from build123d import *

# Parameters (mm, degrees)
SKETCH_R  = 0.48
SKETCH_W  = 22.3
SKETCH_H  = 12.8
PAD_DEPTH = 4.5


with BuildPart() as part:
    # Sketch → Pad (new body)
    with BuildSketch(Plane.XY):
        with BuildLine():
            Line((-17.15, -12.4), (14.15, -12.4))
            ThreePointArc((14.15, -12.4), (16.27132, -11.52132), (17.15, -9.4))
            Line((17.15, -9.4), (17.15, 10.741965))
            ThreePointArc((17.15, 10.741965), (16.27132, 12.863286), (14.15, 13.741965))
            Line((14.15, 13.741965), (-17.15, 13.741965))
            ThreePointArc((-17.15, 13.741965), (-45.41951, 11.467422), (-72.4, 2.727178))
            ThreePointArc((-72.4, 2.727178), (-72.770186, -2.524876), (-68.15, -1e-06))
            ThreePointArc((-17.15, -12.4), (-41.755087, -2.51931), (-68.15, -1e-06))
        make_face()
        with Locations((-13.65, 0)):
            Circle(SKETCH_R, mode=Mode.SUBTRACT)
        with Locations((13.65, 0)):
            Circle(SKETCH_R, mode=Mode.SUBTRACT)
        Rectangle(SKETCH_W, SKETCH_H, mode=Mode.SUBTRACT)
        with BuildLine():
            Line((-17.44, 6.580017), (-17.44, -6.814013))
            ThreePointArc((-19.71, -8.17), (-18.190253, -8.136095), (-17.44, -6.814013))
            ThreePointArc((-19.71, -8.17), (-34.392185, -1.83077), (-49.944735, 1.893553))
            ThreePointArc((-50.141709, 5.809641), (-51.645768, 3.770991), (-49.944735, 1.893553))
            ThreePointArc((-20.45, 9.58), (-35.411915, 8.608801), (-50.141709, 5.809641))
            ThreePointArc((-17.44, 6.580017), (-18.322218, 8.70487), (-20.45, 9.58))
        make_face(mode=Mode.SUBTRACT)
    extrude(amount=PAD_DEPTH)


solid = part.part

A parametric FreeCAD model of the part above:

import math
import FreeCAD as App
import Part
import Sketcher
Q = App.Units.Quantity


def add_polygon(sketch, points):
    """Adds a closed chain of lines whose ends are joined by coincident constraints."""
    first, n = sketch.GeometryCount, len(points)
    for a, b in zip(points, points[1:] + points[:1]):
        sketch.addGeometry(Part.LineSegment(App.Vector(*a, 0), App.Vector(*b, 0)), False)
    for i in range(n):
        sketch.addConstraint(Sketcher.Constraint("Coincident", first + i, 2, first + (i + 1) % n, 1))

doc = App.newDocument("Part")
body = doc.addObject("PartDesign::Body", "Body")

sketch1 = body.newObject("Sketcher::SketchObject", "Sketch")
sketch1.AttachmentSupport = (doc.getObject("XY_Plane"), [""])
sketch1.MapMode = "FlatFace"
sketch1.addGeometry(Part.LineSegment(App.Vector(-17.15, -12.4, 0), App.Vector(14.15, -12.4, 0)), False)
sketch1.addGeometry(Part.ArcOfCircle(Part.Circle(App.Vector(14.149999, -9.399999, 0), App.Vector(0, 0, 1), 3.000001), math.radians(-89.999978), math.radians(-0.000022)), False)
sketch1.addGeometry(Part.LineSegment(App.Vector(17.15, -9.4, 0), App.Vector(17.15, 10.741965, 0)), False)
sketch1.addGeometry(Part.ArcOfCircle(Part.Circle(App.Vector(14.150001, 10.741966, 0), App.Vector(0, 0, 1), 2.999999), math.radians(-0.00001), math.radians(90.00001)), False)
sketch1.addGeometry(Part.LineSegment(App.Vector(14.15, 13.741965, 0), App.Vector(-17.15, 13.741965, 0)), False)
sketch1.addGeometry(Part.ArcOfCircle(Part.Circle(App.Vector(-21.566667, -108.178063, 0), App.Vector(0, 0, 1), 122.000001), math.radians(87.925314), math.radians(114.624318)), False)
sketch1.addGeometry(Part.ArcOfCircle(Part.Circle(App.Vector(-71.15, 0, 0), App.Vector(0, 0, 1), 3), math.radians(114.624316), math.radians(359.999984)), False)
sketch1.addGeometry(Part.ArcOfCircle(Part.Circle(App.Vector(-63.67949, -92.692265, 0), App.Vector(0, 0, 1), 92.800007), math.radians(59.907643), math.radians(92.761212)), False)
sketch1.addGeometry(Part.Circle(App.Vector(-13.65, 0, 0), App.Vector(0, 0, 1), 0.48), False)
add_polygon(sketch1, [(11.15, -6.4), (-11.15, -6.4), (-11.15, 6.4), (11.15, 6.4)])
sketch1.addGeometry(Part.Circle(App.Vector(13.65, 0, 0), App.Vector(0, 0, 1), 0.48), False)
sketch1.addGeometry(Part.ArcOfCircle(Part.Circle(App.Vector(-20.439999, 6.580018, 0), App.Vector(0, 0, 1), 2.999999), math.radians(-0.000011), math.radians(90.191004)), False)
sketch1.addGeometry(Part.LineSegment(App.Vector(-17.44, 6.580017, 0), App.Vector(-17.44, -6.814013, 0)), False)
sketch1.addGeometry(Part.ArcOfCircle(Part.Circle(App.Vector(-18.98, -6.814014, 0), App.Vector(0, 0, 1), 1.54), math.radians(-118.295959), math.radians(0.000019)), False)
sketch1.addGeometry(Part.ArcOfCircle(Part.Circle(App.Vector(-63.699612, -89.88141, 0), App.Vector(0, 0, 1), 92.800003), math.radians(61.70405), math.radians(81.476175)), False)
sketch1.addGeometry(Part.ArcOfCircle(Part.Circle(App.Vector(-49.648293, 3.871461, 0), App.Vector(0, 0, 1), 2), math.radians(104.282784), math.radians(261.476165)), False)
sketch1.addGeometry(Part.ArcOfCircle(Part.Circle(App.Vector(-20.043328, -112.419359, 0), App.Vector(0, 0, 1), 122.000037), math.radians(90.190989), math.radians(104.282792)), False)
sketch1.addConstraint([
    Sketcher.Constraint("Coincident", 0, 2, 1, 1),
    Sketcher.Constraint("Coincident", 1, 2, 2, 1),
    Sketcher.Constraint("Coincident", 2, 2, 3, 1),
    Sketcher.Constraint("Coincident", 3, 2, 4, 1),
    Sketcher.Constraint("Coincident", 4, 2, 5, 1),
    Sketcher.Constraint("Coincident", 5, 2, 6, 1),
    Sketcher.Constraint("Coincident", 6, 2, 7, 2),
    Sketcher.Constraint("Coincident", 7, 1, 0, 1),
    Sketcher.Constraint("Coincident", 14, 1, 15, 1),
    Sketcher.Constraint("Coincident", 15, 2, 16, 2),
    Sketcher.Constraint("Coincident", 16, 1, 17, 1),
    Sketcher.Constraint("Coincident", 17, 2, 18, 2),
    Sketcher.Constraint("Coincident", 18, 1, 19, 2),
    Sketcher.Constraint("Coincident", 19, 1, 14, 2),
    Sketcher.Constraint("Horizontal", 0),
    Sketcher.Constraint("Vertical", 2),
    Sketcher.Constraint("Horizontal", 4),
    Sketcher.Constraint("Horizontal", 9),
    Sketcher.Constraint("Vertical", 10),
    Sketcher.Constraint("Horizontal", 11),
    Sketcher.Constraint("Vertical", 12),
    Sketcher.Constraint("Vertical", 15),
    Sketcher.Constraint("PointOnObject", 6, 3, -1),
    Sketcher.Constraint("PointOnObject", 8, 3, -1),
    Sketcher.Constraint("PointOnObject", 13, 3, -1),
    Sketcher.Constraint("PointOnObject", 6, 2, -1),
    Sketcher.Constraint("Radius", 1, Q("3.000001 mm")),
    Sketcher.Constraint("Radius", 3, Q("2.999999 mm")),
    Sketcher.Constraint("Radius", 5, Q("122.000001 mm")),
    Sketcher.Constraint("Radius", 6, Q("3 mm")),
    Sketcher.Constraint("Radius", 14, Q("2.999999 mm")),
    Sketcher.Constraint("Radius", 18, Q("2 mm")),
    Sketcher.Constraint("Diameter", 8, Q("0.96 mm")),
    Sketcher.Constraint("Diameter", 13, Q("0.96 mm")),
    Sketcher.Constraint("Radius", 16, Q("1.54 mm")),
    Sketcher.Constraint("DistanceX", 0, 1, 0, 2, Q("31.3 mm")),
    Sketcher.Constraint("DistanceX", 4, 2, 4, 1, Q("31.3 mm")),
    Sketcher.Constraint("DistanceX", 9, 2, 9, 1, Q("22.3 mm")),
    Sketcher.Constraint("DistanceY", 10, 1, 10, 2, Q("12.8 mm")),
    Sketcher.Constraint("DistanceX", 0, 2, 1, 2, Q("3 mm")),
    Sketcher.Constraint("DistanceY", 0, 2, 1, 2, Q("3 mm")),
    Sketcher.Constraint("DistanceX", 3, 2, 2, 2, Q("3 mm")),
    Sketcher.Constraint("DistanceY", 2, 2, 3, 2, Q("3 mm")),
    Sketcher.Constraint("DistanceX", 7, 1, 9, 2, Q("6 mm")),
    Sketcher.Constraint("DistanceY", 7, 1, 9, 2, Q("6 mm")),
    Sketcher.Constraint("DistanceY", 1, 3, -1, 1, Q("9.399999 mm")),
    Sketcher.Constraint("DistanceX", 5, 2, -1, 1, Q("72.4 mm")),
    Sketcher.Constraint("DistanceX", 6, 3, 1, 3, Q("85.299999 mm")),
    Sketcher.Constraint("DistanceX", 8, 3, 1, 3, Q("27.799999 mm")),
    Sketcher.Constraint("DistanceX", 13, 3, 1, 3, Q("0.499999 mm")),
    Sketcher.Constraint("DistanceX", 19, 1, 4, 2, Q("3.3 mm")),
    Sketcher.Constraint("DistanceX", -1, 1, 1, 3, Q("14.149999 mm")),
    Sketcher.Constraint("DistanceX", 14, 3, -1, 1, Q("20.439999 mm")),
    Sketcher.Constraint("DistanceX", 16, 1, -1, 1, Q("19.71 mm")),
    Sketcher.Constraint("DistanceY", 16, 1, -1, 1, Q("8.17 mm")),
    Sketcher.Constraint("DistanceY", -1, 1, 19, 1, Q("9.58 mm")),
    Sketcher.Constraint("Radius", 7, Q("92.800007 mm")),
    Sketcher.Constraint("Radius", 17, Q("92.800003 mm")),
    Sketcher.Constraint("Radius", 19, Q("122.000037 mm")),
    Sketcher.Constraint("DistanceY", 15, 2, 15, 1, Q("13.39403 mm")),
    Sketcher.Constraint("DistanceY", 2, 1, 2, 2, Q("20.141965 mm")),
    Sketcher.Constraint("DistanceX", 17, 3, -1, 1, Q("63.699612 mm")),
    Sketcher.Constraint("DistanceY", -1, 1, 18, 3, Q("3.871461 mm")),
    Sketcher.Constraint("DistanceX", 18, 1, -1, 1, Q("50.141709 mm")),
    Sketcher.Constraint("DistanceY", 14, 1, 4, 2, Q("7.161948 mm")),
    Sketcher.Constraint("DistanceX", 17, 2, 18, 3, Q("0.296442 mm")),
])
pad1 = body.newObject("PartDesign::Pad", "Pad")
pad1.Profile = sketch1
pad1.Length = 4.5

doc.recompute()
